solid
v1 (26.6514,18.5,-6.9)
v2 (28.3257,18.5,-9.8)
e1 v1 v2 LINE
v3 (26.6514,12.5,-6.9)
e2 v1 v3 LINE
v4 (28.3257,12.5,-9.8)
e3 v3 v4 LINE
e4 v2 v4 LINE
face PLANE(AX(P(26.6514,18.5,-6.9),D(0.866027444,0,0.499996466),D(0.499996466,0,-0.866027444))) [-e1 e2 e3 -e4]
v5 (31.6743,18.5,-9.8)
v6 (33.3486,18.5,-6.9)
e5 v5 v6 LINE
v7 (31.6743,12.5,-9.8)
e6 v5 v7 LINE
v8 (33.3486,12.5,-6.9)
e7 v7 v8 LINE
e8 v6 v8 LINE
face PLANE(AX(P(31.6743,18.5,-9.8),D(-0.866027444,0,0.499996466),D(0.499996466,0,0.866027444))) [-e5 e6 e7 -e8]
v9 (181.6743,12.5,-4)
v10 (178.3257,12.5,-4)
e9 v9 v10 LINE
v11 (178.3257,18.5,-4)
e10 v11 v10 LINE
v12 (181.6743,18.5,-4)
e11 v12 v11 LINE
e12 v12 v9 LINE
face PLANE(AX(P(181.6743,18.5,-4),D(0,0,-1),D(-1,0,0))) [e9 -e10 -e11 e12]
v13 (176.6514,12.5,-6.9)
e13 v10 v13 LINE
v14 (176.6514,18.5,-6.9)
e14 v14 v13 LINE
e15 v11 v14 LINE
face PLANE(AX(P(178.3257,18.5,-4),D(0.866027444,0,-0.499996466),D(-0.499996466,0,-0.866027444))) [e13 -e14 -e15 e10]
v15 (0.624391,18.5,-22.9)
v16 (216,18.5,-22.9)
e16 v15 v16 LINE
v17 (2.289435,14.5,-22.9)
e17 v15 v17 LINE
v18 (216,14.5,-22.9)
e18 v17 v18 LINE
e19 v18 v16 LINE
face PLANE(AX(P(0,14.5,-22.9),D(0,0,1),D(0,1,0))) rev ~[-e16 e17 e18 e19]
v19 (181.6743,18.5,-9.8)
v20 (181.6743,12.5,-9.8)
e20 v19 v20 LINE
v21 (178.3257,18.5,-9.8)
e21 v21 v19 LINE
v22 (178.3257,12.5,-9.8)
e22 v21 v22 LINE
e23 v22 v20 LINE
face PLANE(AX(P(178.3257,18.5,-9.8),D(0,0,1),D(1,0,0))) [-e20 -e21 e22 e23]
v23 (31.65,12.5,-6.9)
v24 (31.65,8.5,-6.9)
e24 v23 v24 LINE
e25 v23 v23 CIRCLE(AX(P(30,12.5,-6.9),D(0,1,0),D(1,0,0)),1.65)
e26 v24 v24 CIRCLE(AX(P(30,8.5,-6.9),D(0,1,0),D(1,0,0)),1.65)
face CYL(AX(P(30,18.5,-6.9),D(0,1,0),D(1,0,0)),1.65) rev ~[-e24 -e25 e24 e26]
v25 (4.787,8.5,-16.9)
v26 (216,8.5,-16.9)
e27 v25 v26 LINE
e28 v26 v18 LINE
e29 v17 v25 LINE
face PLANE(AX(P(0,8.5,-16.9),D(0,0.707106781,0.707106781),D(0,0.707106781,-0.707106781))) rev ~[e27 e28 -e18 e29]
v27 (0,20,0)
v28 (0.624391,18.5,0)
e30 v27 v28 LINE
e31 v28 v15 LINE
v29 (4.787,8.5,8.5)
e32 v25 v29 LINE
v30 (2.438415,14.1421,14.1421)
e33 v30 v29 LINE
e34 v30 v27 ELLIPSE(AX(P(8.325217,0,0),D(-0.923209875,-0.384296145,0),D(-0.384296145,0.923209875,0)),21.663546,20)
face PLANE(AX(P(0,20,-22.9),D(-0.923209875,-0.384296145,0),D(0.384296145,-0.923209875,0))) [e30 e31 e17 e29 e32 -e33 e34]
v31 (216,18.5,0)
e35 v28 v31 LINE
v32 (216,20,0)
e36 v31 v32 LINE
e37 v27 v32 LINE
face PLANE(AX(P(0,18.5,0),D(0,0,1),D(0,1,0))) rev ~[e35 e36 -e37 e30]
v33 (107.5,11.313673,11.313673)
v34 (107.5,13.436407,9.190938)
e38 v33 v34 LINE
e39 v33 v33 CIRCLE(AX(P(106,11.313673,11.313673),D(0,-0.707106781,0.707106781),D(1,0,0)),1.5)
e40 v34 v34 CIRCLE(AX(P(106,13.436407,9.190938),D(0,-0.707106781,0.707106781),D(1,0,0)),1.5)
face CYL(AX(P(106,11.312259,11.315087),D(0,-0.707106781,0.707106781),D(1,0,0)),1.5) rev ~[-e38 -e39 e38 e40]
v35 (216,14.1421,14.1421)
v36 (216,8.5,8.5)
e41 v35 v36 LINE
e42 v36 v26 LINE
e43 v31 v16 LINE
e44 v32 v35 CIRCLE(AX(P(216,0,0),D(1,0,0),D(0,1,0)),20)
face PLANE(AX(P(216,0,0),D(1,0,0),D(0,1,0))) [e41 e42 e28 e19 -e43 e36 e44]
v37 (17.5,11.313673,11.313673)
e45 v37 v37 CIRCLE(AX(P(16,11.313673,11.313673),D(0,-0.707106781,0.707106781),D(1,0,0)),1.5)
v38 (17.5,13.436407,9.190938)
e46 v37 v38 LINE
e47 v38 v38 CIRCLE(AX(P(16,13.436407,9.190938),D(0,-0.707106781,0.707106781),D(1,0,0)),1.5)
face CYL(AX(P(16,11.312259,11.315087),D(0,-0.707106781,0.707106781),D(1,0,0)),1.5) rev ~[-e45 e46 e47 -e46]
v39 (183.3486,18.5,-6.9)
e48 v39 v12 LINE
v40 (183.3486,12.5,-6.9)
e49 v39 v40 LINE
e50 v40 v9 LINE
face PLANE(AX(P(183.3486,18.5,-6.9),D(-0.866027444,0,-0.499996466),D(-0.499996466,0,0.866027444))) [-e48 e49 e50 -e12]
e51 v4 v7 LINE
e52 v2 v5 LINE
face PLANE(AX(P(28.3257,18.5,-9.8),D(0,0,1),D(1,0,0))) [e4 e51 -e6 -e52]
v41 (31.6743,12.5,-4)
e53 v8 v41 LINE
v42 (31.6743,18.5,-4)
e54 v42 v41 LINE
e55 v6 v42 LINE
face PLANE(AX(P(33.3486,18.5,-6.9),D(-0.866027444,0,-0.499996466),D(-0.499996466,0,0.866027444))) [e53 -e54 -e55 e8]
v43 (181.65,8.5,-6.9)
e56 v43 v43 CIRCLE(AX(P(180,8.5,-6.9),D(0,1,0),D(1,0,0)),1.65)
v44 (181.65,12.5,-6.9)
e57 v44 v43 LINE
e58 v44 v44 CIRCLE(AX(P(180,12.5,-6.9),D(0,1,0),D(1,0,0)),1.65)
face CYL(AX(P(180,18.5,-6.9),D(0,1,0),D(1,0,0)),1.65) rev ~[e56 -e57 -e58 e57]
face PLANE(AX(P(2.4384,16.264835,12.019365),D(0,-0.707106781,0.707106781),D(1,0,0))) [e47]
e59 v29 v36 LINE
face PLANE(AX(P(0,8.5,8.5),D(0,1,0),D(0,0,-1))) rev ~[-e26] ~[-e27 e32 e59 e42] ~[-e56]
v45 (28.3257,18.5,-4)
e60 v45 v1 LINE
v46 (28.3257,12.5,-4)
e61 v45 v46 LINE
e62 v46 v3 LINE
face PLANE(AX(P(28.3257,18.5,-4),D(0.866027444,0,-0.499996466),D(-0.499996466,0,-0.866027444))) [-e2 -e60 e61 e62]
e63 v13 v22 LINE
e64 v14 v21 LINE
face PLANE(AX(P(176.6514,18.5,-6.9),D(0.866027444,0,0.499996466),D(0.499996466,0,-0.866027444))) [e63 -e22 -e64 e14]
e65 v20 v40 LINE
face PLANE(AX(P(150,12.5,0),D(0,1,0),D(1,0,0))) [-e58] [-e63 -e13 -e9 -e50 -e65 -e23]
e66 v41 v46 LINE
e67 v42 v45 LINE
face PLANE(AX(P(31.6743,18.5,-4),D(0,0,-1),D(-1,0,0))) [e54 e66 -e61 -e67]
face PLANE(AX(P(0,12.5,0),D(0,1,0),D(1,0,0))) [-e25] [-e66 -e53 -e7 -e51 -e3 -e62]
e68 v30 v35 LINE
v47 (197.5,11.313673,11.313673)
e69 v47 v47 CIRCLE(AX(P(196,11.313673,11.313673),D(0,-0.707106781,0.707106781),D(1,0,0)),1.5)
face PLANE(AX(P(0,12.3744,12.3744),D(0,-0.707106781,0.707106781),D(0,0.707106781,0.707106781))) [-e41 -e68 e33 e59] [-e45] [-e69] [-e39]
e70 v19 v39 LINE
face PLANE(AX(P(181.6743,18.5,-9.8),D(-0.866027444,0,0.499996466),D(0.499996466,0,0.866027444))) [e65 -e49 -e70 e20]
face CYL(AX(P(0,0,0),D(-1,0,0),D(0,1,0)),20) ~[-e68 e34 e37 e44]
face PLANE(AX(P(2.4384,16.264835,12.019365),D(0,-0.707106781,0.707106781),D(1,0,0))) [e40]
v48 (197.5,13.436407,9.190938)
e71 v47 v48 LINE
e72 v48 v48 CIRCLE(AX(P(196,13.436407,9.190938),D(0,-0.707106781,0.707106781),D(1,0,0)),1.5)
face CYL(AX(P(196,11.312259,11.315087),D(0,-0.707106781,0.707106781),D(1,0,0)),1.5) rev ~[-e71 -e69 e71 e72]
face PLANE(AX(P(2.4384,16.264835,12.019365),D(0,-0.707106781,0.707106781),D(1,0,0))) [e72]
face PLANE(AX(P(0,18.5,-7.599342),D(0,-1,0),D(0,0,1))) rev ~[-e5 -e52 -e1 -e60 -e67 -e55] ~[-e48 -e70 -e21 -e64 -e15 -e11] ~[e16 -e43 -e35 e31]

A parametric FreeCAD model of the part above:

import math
import FreeCAD as App
import Part
import Sketcher
from FreeCAD import Vector
Q = App.Units.Quantity


def add_polygon(sketch, points):
    """Adds a closed chain of lines whose ends are joined by coincident constraints."""
    first, n = sketch.GeometryCount, len(points)
    for a, b in zip(points, points[1:] + points[:1]):
        sketch.addGeometry(Part.LineSegment(App.Vector(*a, 0), App.Vector(*b, 0)), False)
    for i in range(n):
        sketch.addConstraint(Sketcher.Constraint("Coincident", first + i, 2, first + (i + 1) % n, 1))

doc = App.newDocument("Part")
params = doc.addObject("Spreadsheet::Sheet", "Params")
for row, (alias, value) in enumerate([
    ("sketch1_radius", "20 mm"),
    ("sketch1_width", "4 mm"),
    ("sketch1_width2", "1.5 mm"),
    ("sketch1_height", "25.4 mm"),
    ("sketch1_height2", "22.9 mm"),
    ("pad1_length", "216 mm"),
    ("pocket1_length", "6 mm"),
    ("sketch3_diameter", "3.3 mm"),
    ("sketch4_height", "11.5 mm"),
    ("linearpattern_pitch", "150 mm"),
    ("sketch5_diameter", "3 mm"),
    ("pocket4_length", "3 mm"),
], start=1):
    params.set(f"A{row}", alias)
    params.set(f"B{row}", "=" + value)
    params.setAlias(f"B{row}", alias)

body = doc.addObject("PartDesign::Body", "Body")

# Sketch on YZ plane
sketch1 = body.newObject("Sketcher::SketchObject", "Sketch")
sketch1.AttachmentSupport = (doc.getObject("YZ_Plane"), [""])
sketch1.MapMode = "FlatFace"
sketch1.addGeometry(Part.LineSegment(Vector(18.5, 0, 0), Vector(20, 0, 0)), False)
sketch1.addGeometry(Part.ArcOfCircle(Part.Circle(Vector(0, 0, 0), Vector(0, 0, 1), 20), math.radians(0), math.radians(45)), False)
sketch1.addGeometry(Part.LineSegment(Vector(14.1421, 14.1421, 0), Vector(8.5, 8.5, 0)), False)
sketch1.addGeometry(Part.LineSegment(Vector(8.5, 8.5, 0), Vector(8.5, -16.9, 0)), False)
sketch1.addGeometry(Part.LineSegment(Vector(8.5, -16.9, 0), Vector(14.5, -22.9, 0)), False)
sketch1.addGeometry(Part.LineSegment(Vector(14.5, -22.9, 0), Vector(18.5, -22.9, 0)), False)
sketch1.addGeometry(Part.LineSegment(Vector(18.5, -22.9, 0), Vector(18.5, 0, 0)), False)
sketch1.addConstraint(Sketcher.Constraint("Coincident", 0, 2, 1, 1))
sketch1.addConstraint(Sketcher.Constraint("Coincident", 1, 2, 2, 1))
sketch1.addConstraint(Sketcher.Constraint("Coincident", 2, 2, 3, 1))
sketch1.addConstraint(Sketcher.Constraint("Coincident", 3, 2, 4, 1))
sketch1.addConstraint(Sketcher.Constraint("Coincident", 4, 2, 5, 1))
sketch1.addConstraint(Sketcher.Constraint("Coincident", 5, 2, 6, 1))
sketch1.addConstraint(Sketcher.Constraint("Coincident", 6, 2, 0, 1))
sketch1.addConstraint(Sketcher.Constraint("Horizontal", 0))
sketch1.addConstraint(Sketcher.Constraint("Vertical", 3))
sketch1.addConstraint(Sketcher.Constraint("Horizontal", 5))
sketch1.addConstraint(Sketcher.Constraint("Vertical", 6))
sketch1.addConstraint(Sketcher.Constraint("Coincident", 1, 3, -1, 1))
sketch1.addConstraint(Sketcher.Constraint("PointOnObject", 0, 2, -1))
sketch1.addConstraint(Sketcher.Constraint("Perpendicular", 2, 4))
sketch1.addConstraint(Sketcher.Constraint("Radius", 1, 20.0))
sketch1.addConstraint(Sketcher.Constraint("DistanceX", 5, 1, 5, 2, 4.0))
sketch1.addConstraint(Sketcher.Constraint("Angle", 4, Q("-45 deg")))
sketch1.addConstraint(Sketcher.Constraint("DistanceX", 0, 1, 0, 2, 1.5))
sketch1.addConstraint(Sketcher.Constraint("DistanceY", 3, 2, 3, 1, 25.4))
sketch1.addConstraint(Sketcher.Constraint("DistanceX", 3, 2, 5, 2, 10.0))
sketch1.addConstraint(Sketcher.Constraint("DistanceY", 6, 1, 6, 2, 22.9))
sketch1.setExpression("Constraints[14]", "Params.sketch1_radius")
sketch1.setExpression("Constraints[15]", "Params.sketch1_width")
sketch1.setExpression("Constraints[17]", "Params.sketch1_width2")
sketch1.setExpression("Constraints[18]", "Params.sketch1_height")
sketch1.setExpression("Constraints[20]", "Params.sketch1_height2")
pad1 = body.newObject("PartDesign::Pad", "Pad")
pad1.Profile = sketch1
pad1.setExpression("Length", "Params.pad1_length")

# Sketch on XZ plane
sketch2 = body.newObject("Sketcher::SketchObject", "Sketch001")
sketch2.AttachmentSupport = (doc.getObject("XZ_Plane"), [""])
sketch2.MapMode = "FlatFace"
sketch2.AttachmentOffset = App.Placement(Vector(0, 0, -18.5), App.Rotation())
add_polygon(sketch2, [(26.6514, -6.9), (28.3257, -4), (31.6743, -4), (33.3486, -6.9), (31.6743, -9.8), (28.3257, -9.8)])  # lines 0-5
sketch2.addConstraint(Sketcher.Constraint("Horizontal", 1))
sketch2.addConstraint(Sketcher.Constraint("Horizontal", 4))
sketch2.addConstraint(Sketcher.Constraint("Parallel", 0, 3))
sketch2.addConstraint(Sketcher.Constraint("Parallel", 2, 5))
sketch2.addConstraint(Sketcher.Constraint("Horizontal", 2, 2, 5, 2))
sketch2.addConstraint(Sketcher.Constraint("Vertical", 1, 2, 3, 2))
sketch2.addConstraint(Sketcher.Constraint("Vertical", 0, 2, 4, 2))
sketch2.addConstraint(Sketcher.Constraint("DistanceY", 3, 2, 1, 2, 5.8))
sketch2.addConstraint(Sketcher.Constraint("Angle", 0, Q("60.0002 deg")))
sketch2.addConstraint(Sketcher.Constraint("DistanceY", 0, 2, -1, 1, 4.0))
sketch2.addConstraint(Sketcher.Constraint("DistanceX", 1, 1, 1, 2, 3.3486))
sketch2.addConstraint(Sketcher.Constraint("DistanceX", -1, 1, 0, 2, 28.3257))
pocket1 = body.newObject("PartDesign::Pocket", "Pocket")
pocket1.Profile = sketch2
pocket1.setExpression("Length", "Params.pocket1_length")
pocket1.Reversed = True

# Sketch on XZ plane
sketch3 = body.newObject("Sketcher::SketchObject", "Sketch002")
sketch3.AttachmentSupport = (doc.getObject("XZ_Plane"), [""])
sketch3.MapMode = "FlatFace"
sketch3.AttachmentOffset = App.Placement(Vector(0, 0, -18.5), App.Rotation())
sketch3.addGeometry(Part.Circle(Vector(30, -6.9, 0), Vector(0, 0, 1), 1.65), False)
sketch3.addConstraint(Sketcher.Constraint("Diameter", 0, 3.3))
sketch3.addConstraint(Sketcher.Constraint("DistanceX", -1, 1, 0, 3, 30.0))
sketch3.addConstraint(Sketcher.Constraint("DistanceY", 0, 3, -1, 1, 6.9))
sketch3.setExpression("Constraints[0]", "Params.sketch3_diameter")
pocket2 = body.newObject("PartDesign::Pocket", "Pocket001")
pocket2.Profile = sketch3
pocket2.Type = "ThroughAll"
pocket2.Reversed = True

# Sketch on XY plane
sketch4 = body.newObject("Sketcher::SketchObject", "Sketch003")
sketch4.AttachmentSupport = (doc.getObject("XY_Plane"), [""])
sketch4.MapMode = "FlatFace"
sketch4.AttachmentOffset = App.Placement(Vector(0, 0, -22.9), App.Rotation())
add_polygon(sketch4, [(4.787, 8.5), (0, 8.5), (0, 20)])  # lines 0-2
sketch4.addConstraint(Sketcher.Constraint("Horizontal", 0))
sketch4.addConstraint(Sketcher.Constraint("Vertical", 1))
sketch4.addConstraint(Sketcher.Constraint("PointOnObject", 0, 2, -2))
sketch4.addConstraint(Sketcher.Constraint("DistanceY", 1, 1, 1, 2, 11.5))
sketch4.addConstraint(Sketcher.Constraint("DistanceY", -1, 1, 1, 2, 20.0))
sketch4.addConstraint(Sketcher.Constraint("Angle", 2, Q("-67.4 deg")))
sketch4.setExpression("Constraints[6]", "Params.sketch4_height")
pocket3 = body.newObject("PartDesign::Pocket", "Pocket002")
pocket3.Profile = sketch4
pocket3.Type = "ThroughAll"
pocket3.Midplane = True
doc.recompute()

linearpattern = body.newObject("PartDesign::LinearPattern", "LinearPattern")
linearpattern.Originals = [pocket2, pocket1]
linearpattern.Direction = (doc.getObject("X_Axis"), [""])
linearpattern.Mode = "offset"
linearpattern.setExpression("Offset", "Params.linearpattern_pitch")
linearpattern.Occurrences = 2
body.Tip = linearpattern

# Sketch on an angled plane
sketch5 = body.newObject("Sketcher::SketchObject", "Sketch004")
sketch5.Placement = App.Placement(Vector(2.4384, 14.1421, 14.1421), App.Rotation(Vector(1, 0, 0), Vector(0, 0.707106781, 0.707106781), Vector(0, -0.707106781, 0.707106781), "ZXY"))
sketch5.addGeometry(Part.Circle(Vector(193.5616, -4, 0), Vector(0, 0, 1), 1.5), False)
sketch5.addGeometry(Part.Circle(Vector(103.5616, -4, 0), Vector(0, 0, 1), 1.5), False)
sketch5.addGeometry(Part.Circle(Vector(13.5616, -4, 0), Vector(0, 0, 1), 1.5), False)
sketch5.addConstraint(Sketcher.Constraint("Equal", 0, 1))
sketch5.addConstraint(Sketcher.Constraint("Equal", 1, 2))
sketch5.addConstraint(Sketcher.Constraint("Horizontal", 0, 3, 1, 3))
sketch5.addConstraint(Sketcher.Constraint("Horizontal", 1, 3, 2, 3))
sketch5.addConstraint(Sketcher.Constraint("Diameter", 0, 3.0))
sketch5.addConstraint(Sketcher.Constraint("DistanceY", 0, 3, -1, 1, 4.0))
sketch5.addConstraint(Sketcher.Constraint("DistanceX", 1, 3, 0, 3, 90.0))
sketch5.addConstraint(Sketcher.Constraint("DistanceX", 2, 3, 1, 3, 90.0))
sketch5.addConstraint(Sketcher.Constraint("DistanceX", -1, 1, 0, 3, 193.5616))
sketch5.setExpression("Constraints[4]", "Params.sketch5_diameter")
pocket4 = body.newObject("PartDesign::Pocket", "Pocket003")
pocket4.Profile = sketch5
pocket4.setExpression("Length", "Params.pocket4_length")

doc.recompute()
